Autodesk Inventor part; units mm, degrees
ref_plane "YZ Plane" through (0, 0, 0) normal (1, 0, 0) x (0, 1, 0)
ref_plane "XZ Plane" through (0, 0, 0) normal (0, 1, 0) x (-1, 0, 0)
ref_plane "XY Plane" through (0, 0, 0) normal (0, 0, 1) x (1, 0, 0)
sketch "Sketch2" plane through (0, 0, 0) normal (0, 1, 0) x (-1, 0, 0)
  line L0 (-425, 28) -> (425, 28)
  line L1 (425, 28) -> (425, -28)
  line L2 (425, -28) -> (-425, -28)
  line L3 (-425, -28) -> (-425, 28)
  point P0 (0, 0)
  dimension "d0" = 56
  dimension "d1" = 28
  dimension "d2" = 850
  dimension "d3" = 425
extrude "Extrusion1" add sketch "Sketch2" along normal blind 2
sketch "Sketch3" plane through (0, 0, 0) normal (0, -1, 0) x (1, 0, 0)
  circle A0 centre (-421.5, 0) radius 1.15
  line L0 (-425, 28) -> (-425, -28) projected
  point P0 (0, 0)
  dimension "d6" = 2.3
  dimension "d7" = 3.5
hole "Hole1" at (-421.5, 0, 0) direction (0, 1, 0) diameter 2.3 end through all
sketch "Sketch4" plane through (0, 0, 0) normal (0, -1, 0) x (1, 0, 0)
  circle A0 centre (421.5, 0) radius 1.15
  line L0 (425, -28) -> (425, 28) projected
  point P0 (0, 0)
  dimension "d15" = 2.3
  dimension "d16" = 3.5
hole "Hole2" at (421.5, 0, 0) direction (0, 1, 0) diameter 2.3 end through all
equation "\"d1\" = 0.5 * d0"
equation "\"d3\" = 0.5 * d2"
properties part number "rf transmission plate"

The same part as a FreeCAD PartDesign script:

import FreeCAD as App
import Part
import Sketcher
from FreeCAD import Vector
Q = App.Units.Quantity


def add_polygon(sketch, points):
    """Adds a closed chain of lines whose ends are joined by coincident constraints."""
    first, n = sketch.GeometryCount, len(points)
    for a, b in zip(points, points[1:] + points[:1]):
        sketch.addGeometry(Part.LineSegment(App.Vector(*a, 0), App.Vector(*b, 0)), False)
    for i in range(n):
        sketch.addConstraint(Sketcher.Constraint("Coincident", first + i, 2, first + (i + 1) % n, 1))

doc = App.newDocument("Part")
body = doc.addObject("PartDesign::Body", "Body")

# Sketch on XZ plane
sketch1 = body.newObject("Sketcher::SketchObject", "Sketch")
sketch1.AttachmentSupport = (doc.getObject("XZ_Plane"), [""])
sketch1.MapMode = "FlatFace"
add_polygon(sketch1, [(-425, 28), (425, 28), (425, -28), (-425, -28)])  # lines 0-3
sketch1.addConstraint([
    Sketcher.Constraint("Horizontal", 0),
    Sketcher.Constraint("Vertical", 1),
    Sketcher.Constraint("Horizontal", 2),
    Sketcher.Constraint("Vertical", 3),
    Sketcher.Constraint("Symmetric", 0, 2, 2, 2, -1, 1),
    Sketcher.Constraint("DistanceX", 0, 1, 0, 2, Q("850 mm")),
    Sketcher.Constraint("DistanceY", 1, 2, 1, 1, Q("56 mm")),
])
pad1 = body.newObject("PartDesign::Pad", "Pad")
pad1.Profile = sketch1
pad1.Length = 2
pad1.Reversed = True

# Sketch on XZ plane
sketch2 = body.newObject("Sketcher::SketchObject", "Sketch001")
sketch2.AttachmentSupport = (doc.getObject("XZ_Plane"), [""])
sketch2.MapMode = "FlatFace"
sketch2.addGeometry(Part.Circle(Vector(-421.5, 0, 0), Vector(0, 0, 1), 1.15), False)
sketch2.addConstraint([
    Sketcher.Constraint("PointOnObject", 0, 3, -1),
    Sketcher.Constraint("Diameter", 0, Q("2.3 mm")),
    Sketcher.Constraint("DistanceX", 0, 3, -1, 1, Q("421.5 mm")),
])
doc.recompute()
hole = body.newObject("PartDesign::Hole", "Hole")
hole.Profile = sketch2
hole.ThreadType = "None"
hole.Diameter = 2.3
hole.DepthType = "ThroughAll"

# Sketch on XZ plane
sketch3 = body.newObject("Sketcher::SketchObject", "Sketch002")
sketch3.AttachmentSupport = (doc.getObject("XZ_Plane"), [""])
sketch3.MapMode = "FlatFace"
sketch3.addGeometry(Part.Circle(Vector(421.5, 0, 0), Vector(0, 0, 1), 1.15), False)
sketch3.addConstraint([
    Sketcher.Constraint("PointOnObject", 0, 3, -1),
    Sketcher.Constraint("Diameter", 0, Q("2.3 mm")),
    Sketcher.Constraint("DistanceX", -1, 1, 0, 3, Q("421.5 mm")),
])
doc.recompute()
hole2 = body.newObject("PartDesign::Hole", "Hole001")
hole2.Profile = sketch3
hole2.ThreadType = "None"
hole2.Diameter = 2.3
hole2.DepthType = "ThroughAll"

doc.recompute()
